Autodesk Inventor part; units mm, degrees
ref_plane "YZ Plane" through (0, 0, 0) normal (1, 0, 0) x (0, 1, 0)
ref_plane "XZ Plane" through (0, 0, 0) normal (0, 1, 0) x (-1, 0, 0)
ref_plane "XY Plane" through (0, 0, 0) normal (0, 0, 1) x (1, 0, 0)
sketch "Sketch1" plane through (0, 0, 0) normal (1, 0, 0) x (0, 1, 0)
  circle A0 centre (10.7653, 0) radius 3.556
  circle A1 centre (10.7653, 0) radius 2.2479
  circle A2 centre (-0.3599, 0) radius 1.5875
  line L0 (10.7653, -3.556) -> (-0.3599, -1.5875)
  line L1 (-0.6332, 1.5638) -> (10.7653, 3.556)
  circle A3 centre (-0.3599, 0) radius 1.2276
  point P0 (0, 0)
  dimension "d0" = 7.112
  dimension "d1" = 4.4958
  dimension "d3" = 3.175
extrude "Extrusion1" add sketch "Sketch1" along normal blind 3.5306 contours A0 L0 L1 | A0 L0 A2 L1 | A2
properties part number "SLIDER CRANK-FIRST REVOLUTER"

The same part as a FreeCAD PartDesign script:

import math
import FreeCAD as App
import Part
import Sketcher
from FreeCAD import Vector
Q = App.Units.Quantity

doc = App.newDocument("Part")
body = doc.addObject("PartDesign::Body", "Body")

# Sketch on YZ plane
sketch1 = body.newObject("Sketcher::SketchObject", "Sketch")
sketch1.AttachmentSupport = (doc.getObject("YZ_Plane"), [""])
sketch1.MapMode = "FlatFace"
sketch1.addGeometry([
    Part.ArcOfCircle(Part.Circle(Vector(10.8, 0, 0), Vector(0, 0, 1), 3.6), math.radians(-90), math.radians(90)),  # 0
    Part.LineSegment(Vector(10.8, 3.6, 0), Vector(-0.6, 1.6, 0)),  # 1
    Part.ArcOfCircle(Part.Circle(Vector(-0.4, 0, 0), Vector(0, 0, 1), 1.6), math.radians(100), math.radians(270)),  # 2
    Part.LineSegment(Vector(-0.4, -1.6, 0), Vector(10.8, -3.6, 0)),  # 3
    Part.Circle(Vector(10.8, 0, 0), Vector(0, 0, 1), 2.2),  # 4
    Part.Circle(Vector(-0.4, 0, 0), Vector(0, 0, 1), 1.2),  # 5
], False)
sketch1.addConstraint([
    Sketcher.Constraint("Coincident", 0, 2, 1, 1),
    Sketcher.Constraint("Tangent", 1, 2, 2, 1),
    Sketcher.Constraint("Coincident", 2, 2, 3, 1),
    Sketcher.Constraint("Coincident", 3, 2, 0, 1),
    Sketcher.Constraint("Coincident", 4, 3, 0, 3),
    Sketcher.Constraint("Coincident", 5, 3, 2, 3),
    Sketcher.Constraint("Symmetric", 0, 2, 3, 2, -1),
    Sketcher.Constraint("PointOnObject", 2, 3, -1),
    Sketcher.Constraint("Vertical", 4, 3, 0, 2),
    Sketcher.Constraint("Vertical", 5, 3, 2, 2),
    Sketcher.Constraint("Radius", 0, Q("0.14 in")),
    Sketcher.Constraint("Diameter", 4, Q("0.177 in")),
    Sketcher.Constraint("Radius", 2, Q("0.0625 in")),
    Sketcher.Constraint("Diameter", 5, 2.4552),
    Sketcher.Constraint("DistanceX", 2, 3, 0, 3, Q("0.438 in")),
    Sketcher.Constraint("DistanceX", -1, 1, 0, 3, 10.7653),
])
pad1 = body.newObject("PartDesign::Pad", "Pad")
pad1.Profile = sketch1
pad1.Length = Q("0.139 in")

doc.recompute()
